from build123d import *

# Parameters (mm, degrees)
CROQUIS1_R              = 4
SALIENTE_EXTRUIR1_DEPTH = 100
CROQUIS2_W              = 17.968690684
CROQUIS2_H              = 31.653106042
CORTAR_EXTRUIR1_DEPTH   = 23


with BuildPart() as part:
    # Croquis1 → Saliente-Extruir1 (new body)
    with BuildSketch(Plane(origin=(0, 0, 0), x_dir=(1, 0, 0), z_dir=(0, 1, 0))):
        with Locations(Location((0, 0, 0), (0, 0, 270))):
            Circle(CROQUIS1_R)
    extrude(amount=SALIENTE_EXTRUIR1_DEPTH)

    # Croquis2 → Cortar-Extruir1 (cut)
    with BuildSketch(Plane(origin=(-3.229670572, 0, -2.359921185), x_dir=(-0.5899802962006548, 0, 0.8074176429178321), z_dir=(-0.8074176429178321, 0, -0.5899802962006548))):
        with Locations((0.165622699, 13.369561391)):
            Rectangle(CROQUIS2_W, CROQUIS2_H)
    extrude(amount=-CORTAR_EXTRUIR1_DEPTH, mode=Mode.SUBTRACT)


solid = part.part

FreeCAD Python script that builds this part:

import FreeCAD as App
import Part
import Sketcher


def add_polygon(sketch, points):
    """Adds a closed chain of lines whose ends are joined by coincident constraints."""
    first, n = sketch.GeometryCount, len(points)
    for a, b in zip(points, points[1:] + points[:1]):
        sketch.addGeometry(Part.LineSegment(App.Vector(*a, 0), App.Vector(*b, 0)), False)
    for i in range(n):
        sketch.addConstraint(Sketcher.Constraint("Coincident", first + i, 2, first + (i + 1) % n, 1))

doc = App.newDocument("Part")
body = doc.addObject("PartDesign::Body", "Body")

sketch1 = body.newObject("Sketcher::SketchObject", "Sketch")
sketch1.AttachmentSupport = (doc.getObject("XZ_Plane"), [""])
sketch1.MapMode = "FlatFace"
sketch1.addGeometry(Part.Circle(App.Vector(0, 0, 0), App.Vector(0, 0, 1), 4), False)
sketch1.addConstraint([
    Sketcher.Constraint("Coincident", 0, 3, -1, 1),
    Sketcher.Constraint("Diameter", 0, 8.0),
])
pad1 = body.newObject("PartDesign::Pad", "Pad")
pad1.Profile = sketch1
pad1.Length = 100
pad1.Reversed = True

sketch2 = body.newObject("Sketcher::SketchObject", "Sketch001")
sketch2.Placement = App.Placement(App.Vector(-3.229671, 0, -2.359921), App.Rotation(App.Vector(-0.589980296, 0, 0.807417643), App.Vector(0, 1, 0), App.Vector(-0.807417643, 0, -0.589980296), "ZXY"))
add_polygon(sketch2, [(-8.818723, 29.196114), (-8.818723, -2.456992), (9.149968, -2.456992), (9.149968, 29.196114)])
sketch2.addConstraint([
    Sketcher.Constraint("Vertical", 0),
    Sketcher.Constraint("Horizontal", 1),
    Sketcher.Constraint("Vertical", 2),
    Sketcher.Constraint("Horizontal", 3),
    Sketcher.Constraint("DistanceX", 1, 1, 1, 2, 17.968691),
    Sketcher.Constraint("DistanceY", 0, 2, 0, 1, 31.653106),
    Sketcher.Constraint("DistanceY", 0, 2, -1, 1, 2.456992),
    Sketcher.Constraint("DistanceX", -1, 1, 1, 2, 9.149968),
])
pocket1 = body.newObject("PartDesign::Pocket", "Pocket")
pocket1.Profile = sketch2
pocket1.Length = 23

doc.recompute()
